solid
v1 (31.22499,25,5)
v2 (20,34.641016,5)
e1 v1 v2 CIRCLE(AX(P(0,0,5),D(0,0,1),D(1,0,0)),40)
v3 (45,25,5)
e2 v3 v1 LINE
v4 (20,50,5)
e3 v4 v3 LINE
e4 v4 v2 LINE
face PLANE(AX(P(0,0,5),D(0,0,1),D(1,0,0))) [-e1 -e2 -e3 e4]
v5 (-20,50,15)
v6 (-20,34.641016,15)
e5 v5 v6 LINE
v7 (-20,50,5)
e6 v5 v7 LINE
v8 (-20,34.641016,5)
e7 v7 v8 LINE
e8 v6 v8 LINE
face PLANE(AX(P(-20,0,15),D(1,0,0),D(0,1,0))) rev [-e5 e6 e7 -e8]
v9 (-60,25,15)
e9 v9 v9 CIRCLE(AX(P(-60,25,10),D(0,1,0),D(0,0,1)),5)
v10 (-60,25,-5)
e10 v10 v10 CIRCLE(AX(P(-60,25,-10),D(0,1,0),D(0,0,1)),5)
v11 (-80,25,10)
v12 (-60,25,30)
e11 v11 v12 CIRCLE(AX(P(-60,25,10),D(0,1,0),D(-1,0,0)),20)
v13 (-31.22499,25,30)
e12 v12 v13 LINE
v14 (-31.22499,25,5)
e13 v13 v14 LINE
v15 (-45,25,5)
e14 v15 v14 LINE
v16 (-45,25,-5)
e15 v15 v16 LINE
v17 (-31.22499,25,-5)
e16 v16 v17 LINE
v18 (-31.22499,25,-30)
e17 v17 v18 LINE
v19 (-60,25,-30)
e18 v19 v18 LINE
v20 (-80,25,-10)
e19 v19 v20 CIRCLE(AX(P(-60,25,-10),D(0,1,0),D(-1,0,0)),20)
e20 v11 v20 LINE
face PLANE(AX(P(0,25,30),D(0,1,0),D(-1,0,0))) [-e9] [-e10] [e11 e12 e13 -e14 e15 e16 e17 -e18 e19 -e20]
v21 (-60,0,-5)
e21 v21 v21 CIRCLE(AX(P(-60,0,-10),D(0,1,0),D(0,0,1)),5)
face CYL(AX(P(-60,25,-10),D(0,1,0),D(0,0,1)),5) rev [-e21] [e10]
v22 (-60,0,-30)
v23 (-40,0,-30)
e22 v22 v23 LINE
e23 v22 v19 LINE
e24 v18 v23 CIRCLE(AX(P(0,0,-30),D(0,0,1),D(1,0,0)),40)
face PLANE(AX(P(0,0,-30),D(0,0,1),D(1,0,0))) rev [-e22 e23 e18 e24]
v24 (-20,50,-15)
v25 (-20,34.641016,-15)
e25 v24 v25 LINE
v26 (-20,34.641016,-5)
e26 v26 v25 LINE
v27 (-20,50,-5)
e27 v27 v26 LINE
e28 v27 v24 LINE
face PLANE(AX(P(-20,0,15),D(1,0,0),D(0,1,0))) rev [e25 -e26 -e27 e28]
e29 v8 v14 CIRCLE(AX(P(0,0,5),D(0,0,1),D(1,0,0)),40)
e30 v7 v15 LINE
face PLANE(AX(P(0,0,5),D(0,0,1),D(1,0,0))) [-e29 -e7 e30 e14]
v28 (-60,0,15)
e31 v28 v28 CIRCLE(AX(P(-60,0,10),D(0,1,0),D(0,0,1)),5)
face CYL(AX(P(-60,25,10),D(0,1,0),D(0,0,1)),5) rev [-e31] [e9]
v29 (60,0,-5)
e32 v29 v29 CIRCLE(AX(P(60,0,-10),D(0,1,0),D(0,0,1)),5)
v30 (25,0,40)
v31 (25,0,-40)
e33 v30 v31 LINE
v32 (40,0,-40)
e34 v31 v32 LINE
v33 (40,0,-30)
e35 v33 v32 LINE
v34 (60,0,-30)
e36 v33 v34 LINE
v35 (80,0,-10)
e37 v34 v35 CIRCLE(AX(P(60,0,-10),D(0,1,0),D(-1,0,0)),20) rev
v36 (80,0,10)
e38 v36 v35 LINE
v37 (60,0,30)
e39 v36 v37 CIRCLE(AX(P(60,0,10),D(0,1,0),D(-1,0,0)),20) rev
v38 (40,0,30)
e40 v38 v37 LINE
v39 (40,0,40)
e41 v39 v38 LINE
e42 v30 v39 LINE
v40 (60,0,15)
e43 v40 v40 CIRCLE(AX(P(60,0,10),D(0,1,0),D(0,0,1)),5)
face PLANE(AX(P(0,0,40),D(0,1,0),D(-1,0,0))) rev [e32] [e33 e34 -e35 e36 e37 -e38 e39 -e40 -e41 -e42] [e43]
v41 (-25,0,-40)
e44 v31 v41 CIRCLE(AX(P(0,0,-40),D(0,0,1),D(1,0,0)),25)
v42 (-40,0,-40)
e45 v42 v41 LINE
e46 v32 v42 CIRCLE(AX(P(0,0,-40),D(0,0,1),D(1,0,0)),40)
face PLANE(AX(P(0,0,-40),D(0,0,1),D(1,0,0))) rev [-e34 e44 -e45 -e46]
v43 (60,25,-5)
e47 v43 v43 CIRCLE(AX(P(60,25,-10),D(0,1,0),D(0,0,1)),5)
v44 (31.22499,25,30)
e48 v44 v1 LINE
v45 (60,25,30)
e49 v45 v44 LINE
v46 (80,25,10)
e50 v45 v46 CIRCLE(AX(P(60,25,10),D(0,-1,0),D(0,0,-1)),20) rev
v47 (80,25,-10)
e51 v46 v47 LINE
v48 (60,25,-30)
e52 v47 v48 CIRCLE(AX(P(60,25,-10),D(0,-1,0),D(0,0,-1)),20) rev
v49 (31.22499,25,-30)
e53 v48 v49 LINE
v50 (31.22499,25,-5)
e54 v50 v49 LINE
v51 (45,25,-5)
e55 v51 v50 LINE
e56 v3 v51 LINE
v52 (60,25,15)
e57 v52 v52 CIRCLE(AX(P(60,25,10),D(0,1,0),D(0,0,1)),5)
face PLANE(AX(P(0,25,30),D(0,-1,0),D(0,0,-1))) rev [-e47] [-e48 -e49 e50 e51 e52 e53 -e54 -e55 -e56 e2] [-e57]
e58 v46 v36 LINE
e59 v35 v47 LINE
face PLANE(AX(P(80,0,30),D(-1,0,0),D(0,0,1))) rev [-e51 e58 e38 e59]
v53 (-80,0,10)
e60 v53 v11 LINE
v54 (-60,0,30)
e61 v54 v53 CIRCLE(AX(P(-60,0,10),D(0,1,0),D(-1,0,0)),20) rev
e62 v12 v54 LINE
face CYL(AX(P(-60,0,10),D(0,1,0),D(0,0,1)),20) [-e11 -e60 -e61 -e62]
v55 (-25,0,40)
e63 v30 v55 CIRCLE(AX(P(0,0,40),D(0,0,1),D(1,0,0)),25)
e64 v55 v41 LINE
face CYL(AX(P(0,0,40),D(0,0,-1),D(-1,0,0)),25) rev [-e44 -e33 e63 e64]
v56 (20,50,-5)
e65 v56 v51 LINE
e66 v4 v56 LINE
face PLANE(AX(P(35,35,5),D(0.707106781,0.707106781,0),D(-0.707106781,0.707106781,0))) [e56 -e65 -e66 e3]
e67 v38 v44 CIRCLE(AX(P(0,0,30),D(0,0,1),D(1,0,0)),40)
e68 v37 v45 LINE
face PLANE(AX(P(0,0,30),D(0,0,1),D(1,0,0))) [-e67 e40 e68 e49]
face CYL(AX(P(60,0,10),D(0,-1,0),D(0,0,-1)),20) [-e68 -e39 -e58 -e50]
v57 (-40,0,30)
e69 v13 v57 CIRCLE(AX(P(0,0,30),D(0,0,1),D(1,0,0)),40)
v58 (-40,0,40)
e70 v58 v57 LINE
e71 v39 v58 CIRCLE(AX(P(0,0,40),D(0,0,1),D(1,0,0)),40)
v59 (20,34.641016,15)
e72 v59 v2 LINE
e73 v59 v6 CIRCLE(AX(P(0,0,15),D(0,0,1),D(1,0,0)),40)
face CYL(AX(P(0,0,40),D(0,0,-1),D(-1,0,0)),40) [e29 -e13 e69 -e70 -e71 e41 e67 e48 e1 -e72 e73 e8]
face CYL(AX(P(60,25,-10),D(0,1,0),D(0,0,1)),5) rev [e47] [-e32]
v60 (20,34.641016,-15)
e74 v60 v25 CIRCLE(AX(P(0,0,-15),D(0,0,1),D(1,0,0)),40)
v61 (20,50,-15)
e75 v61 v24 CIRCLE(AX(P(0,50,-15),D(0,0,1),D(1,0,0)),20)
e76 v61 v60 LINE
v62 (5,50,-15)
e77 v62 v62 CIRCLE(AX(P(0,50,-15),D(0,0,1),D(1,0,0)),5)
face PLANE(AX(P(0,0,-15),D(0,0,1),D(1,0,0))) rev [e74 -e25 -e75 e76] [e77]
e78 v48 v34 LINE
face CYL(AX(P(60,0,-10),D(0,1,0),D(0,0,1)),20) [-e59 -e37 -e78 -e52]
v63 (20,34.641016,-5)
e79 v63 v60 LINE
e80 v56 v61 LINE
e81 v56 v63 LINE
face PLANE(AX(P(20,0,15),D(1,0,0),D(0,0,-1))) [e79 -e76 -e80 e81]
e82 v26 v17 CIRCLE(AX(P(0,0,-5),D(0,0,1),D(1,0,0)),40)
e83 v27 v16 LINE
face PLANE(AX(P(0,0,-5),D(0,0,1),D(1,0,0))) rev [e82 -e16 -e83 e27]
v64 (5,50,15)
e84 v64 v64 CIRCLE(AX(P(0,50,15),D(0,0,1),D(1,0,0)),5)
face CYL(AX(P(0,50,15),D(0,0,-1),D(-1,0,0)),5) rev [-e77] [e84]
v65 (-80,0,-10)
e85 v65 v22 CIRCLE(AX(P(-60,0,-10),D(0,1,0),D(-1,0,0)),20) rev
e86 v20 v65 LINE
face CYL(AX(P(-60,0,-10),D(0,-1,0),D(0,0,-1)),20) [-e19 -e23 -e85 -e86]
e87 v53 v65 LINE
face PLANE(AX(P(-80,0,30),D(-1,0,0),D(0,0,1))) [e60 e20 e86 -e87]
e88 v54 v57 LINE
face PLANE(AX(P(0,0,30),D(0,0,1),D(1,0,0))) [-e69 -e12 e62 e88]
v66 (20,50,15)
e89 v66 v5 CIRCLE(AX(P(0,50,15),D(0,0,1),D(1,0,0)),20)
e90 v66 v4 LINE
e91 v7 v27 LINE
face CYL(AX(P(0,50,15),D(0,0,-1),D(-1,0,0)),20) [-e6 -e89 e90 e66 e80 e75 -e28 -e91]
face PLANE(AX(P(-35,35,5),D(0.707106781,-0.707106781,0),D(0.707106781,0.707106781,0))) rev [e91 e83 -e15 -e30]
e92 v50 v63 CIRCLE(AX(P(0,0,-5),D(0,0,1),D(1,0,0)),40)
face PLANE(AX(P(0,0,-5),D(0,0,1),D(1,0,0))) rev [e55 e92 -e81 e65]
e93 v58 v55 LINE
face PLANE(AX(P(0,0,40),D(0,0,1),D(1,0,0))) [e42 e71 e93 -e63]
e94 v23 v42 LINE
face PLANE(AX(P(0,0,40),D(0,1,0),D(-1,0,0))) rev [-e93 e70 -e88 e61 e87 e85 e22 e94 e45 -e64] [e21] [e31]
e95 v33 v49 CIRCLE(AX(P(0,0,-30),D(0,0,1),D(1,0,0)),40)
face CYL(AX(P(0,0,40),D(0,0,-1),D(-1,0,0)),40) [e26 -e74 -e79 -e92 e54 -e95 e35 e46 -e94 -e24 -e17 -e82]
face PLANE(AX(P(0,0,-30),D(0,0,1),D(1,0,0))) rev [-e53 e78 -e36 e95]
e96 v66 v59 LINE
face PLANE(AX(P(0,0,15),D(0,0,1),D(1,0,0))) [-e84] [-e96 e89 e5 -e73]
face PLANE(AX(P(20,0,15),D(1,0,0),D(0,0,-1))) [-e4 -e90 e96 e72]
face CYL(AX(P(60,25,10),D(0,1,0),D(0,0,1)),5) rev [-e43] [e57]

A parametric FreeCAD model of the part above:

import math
import FreeCAD as App
import Part
import Sketcher
Q = App.Units.Quantity


def edges_at(feature, points):
    """Names of the edges that pass closest to the given points."""
    edges = feature.Shape.Edges
    near = lambda p: min(range(len(edges)), key=lambda i: edges[i].distToShape(Part.Vertex(*p))[0])
    return sorted({f"Edge{near(p) + 1}" for p in points})

doc = App.newDocument("Part")
body = doc.addObject("PartDesign::Body", "Body")

# Sketch on XY plane
sketch1 = body.newObject("Sketcher::SketchObject", "Sketch")
sketch1.AttachmentSupport = (doc.getObject("XY_Plane"), [""])
sketch1.MapMode = "FlatFace"
sketch1.addGeometry([
    Part.ArcOfCircle(Part.Circle(App.Vector(0, 0, 0), App.Vector(0, 0, 1), 40), math.radians(141), math.radians(180)),  # 0
    Part.LineSegment(App.Vector(-40, 0, 0), App.Vector(-25, 0, 0)),  # 1
    Part.ArcOfCircle(Part.Circle(App.Vector(0, 0, 0), App.Vector(0, 0, 1), 25), math.radians(0), math.radians(180)),  # 2
    Part.LineSegment(App.Vector(25, 0, 0), App.Vector(40, 0, 0)),  # 3
    Part.ArcOfCircle(Part.Circle(App.Vector(0, 0, 0), App.Vector(0, 0, 1), 40), math.radians(0), math.radians(39)),  # 4
    Part.ArcOfCircle(Part.Circle(App.Vector(0, 0, 0), App.Vector(0, 0, 1), 40), math.radians(39), math.radians(60)),  # 5
    Part.ArcOfCircle(Part.Circle(App.Vector(0, 0, 0), App.Vector(0, 0, 1), 40), math.radians(60), math.radians(120)),  # 6
    Part.ArcOfCircle(Part.Circle(App.Vector(0, 0, 0), App.Vector(0, 0, 1), 40), math.radians(120), math.radians(141)),  # 7
], False)
sketch1.addConstraint([
    Sketcher.Constraint("Coincident", 0, 2, 1, 1),
    Sketcher.Constraint("Coincident", 1, 2, 2, 2),
    Sketcher.Constraint("Coincident", 2, 1, 3, 1),
    Sketcher.Constraint("Coincident", 3, 2, 4, 1),
    Sketcher.Constraint("Tangent", 4, 2, 5, 1),
    Sketcher.Constraint("Tangent", 5, 2, 6, 1),
    Sketcher.Constraint("Tangent", 6, 2, 7, 1),
    Sketcher.Constraint("Tangent", 7, 2, 0, 1),
    Sketcher.Constraint("Horizontal", 1),
    Sketcher.Constraint("Horizontal", 3),
    Sketcher.Constraint("Coincident", 0, 3, -1, 1),
    Sketcher.Constraint("Coincident", 2, 3, -1, 1),
    Sketcher.Constraint("Coincident", 4, 3, -1, 1),
    Sketcher.Constraint("Coincident", 6, 3, -1, 1),
    Sketcher.Constraint("PointOnObject", 0, 2, -1),
    Sketcher.Constraint("PointOnObject", 2, 1, -1),
    Sketcher.Constraint("Horizontal", 5, 2, 6, 2),
    Sketcher.Constraint("Horizontal", 4, 2, 7, 2),
    Sketcher.Constraint("Radius", 0, Q("40 mm")),
    Sketcher.Constraint("Radius", 2, Q("25 mm")),
    Sketcher.Constraint("DistanceY", -1, 1, 4, 2, Q("25 mm")),
    Sketcher.Constraint("DistanceX", -1, 1, 5, 2, Q("20 mm")),
])
pad1 = body.newObject("PartDesign::Pad", "Pad")
pad1.Profile = sketch1
pad1.Length = 80
pad1.Midplane = True

# Sketch on XY plane
sketch2 = body.newObject("Sketcher::SketchObject", "Sketch001")
sketch2.AttachmentSupport = (doc.getObject("XY_Plane"), [""])
sketch2.MapMode = "FlatFace"
sketch2.addGeometry([
    Part.ArcOfCircle(Part.Circle(App.Vector(0, 0, 0), App.Vector(0, 0, 1), 40), math.radians(0), math.radians(39)),  # 0
    Part.LineSegment(App.Vector(40, 0, 0), App.Vector(80, 0, 0)),  # 1
    Part.LineSegment(App.Vector(80, 0, 0), App.Vector(80, 25, 0)),  # 2
    Part.LineSegment(App.Vector(80, 25, 0), App.Vector(31, 25, 0)),  # 3
    Part.LineSegment(App.Vector(-80, 25, 0), App.Vector(-80, 0, 0)),  # 4
    Part.LineSegment(App.Vector(-80, 0, 0), App.Vector(-40, 0, 0)),  # 5
    Part.ArcOfCircle(Part.Circle(App.Vector(0, 0, 0), App.Vector(0, 0, 1), 40), math.radians(141), math.radians(180)),  # 6
    Part.LineSegment(App.Vector(-31, 25, 0), App.Vector(-80, 25, 0)),  # 7
], False)
sketch2.addConstraint([
    Sketcher.Constraint("Coincident", 0, 1, 1, 1),
    Sketcher.Constraint("Coincident", 1, 2, 2, 1),
    Sketcher.Constraint("Coincident", 2, 2, 3, 1),
    Sketcher.Constraint("Coincident", 3, 2, 0, 2),
    Sketcher.Constraint("Coincident", 4, 2, 5, 1),
    Sketcher.Constraint("Coincident", 5, 2, 6, 2),
    Sketcher.Constraint("Coincident", 6, 1, 7, 1),
    Sketcher.Constraint("Coincident", 7, 2, 4, 1),
    Sketcher.Constraint("Horizontal", 1),
    Sketcher.Constraint("Vertical", 2),
    Sketcher.Constraint("Horizontal", 3),
    Sketcher.Constraint("Vertical", 4),
    Sketcher.Constraint("Horizontal", 5),
    Sketcher.Constraint("Horizontal", 7),
    Sketcher.Constraint("Coincident", 0, 3, -1, 1),
    Sketcher.Constraint("Coincident", 6, 3, -1, 1),
    Sketcher.Constraint("Equal", 0, 6),
    Sketcher.Constraint("Symmetric", 1, 2, 4, 2, -1, 1),
    Sketcher.Constraint("PointOnObject", 0, 1, -1),
    Sketcher.Constraint("Horizontal", 3, 2, 6, 1),
    Sketcher.Constraint("Radius", 0, Q("40 mm")),
    Sketcher.Constraint("DistanceX", 1, 1, 1, 2, Q("40 mm")),
    Sketcher.Constraint("DistanceY", 2, 1, 2, 2, Q("25 mm")),
])
pad2 = body.newObject("PartDesign::Pad", "Pad001")
pad2.Profile = sketch2
pad2.Length = 60
pad2.Midplane = True

# Sketch on XY plane
sketch3 = body.newObject("Sketcher::SketchObject", "Sketch002")
sketch3.AttachmentSupport = (doc.getObject("XY_Plane"), [""])
sketch3.MapMode = "FlatFace"
sketch3.addGeometry([
    Part.LineSegment(App.Vector(20, 50, 0), App.Vector(20, 35, 0)),  # 0
    Part.ArcOfCircle(Part.Circle(App.Vector(0, 0, 0), App.Vector(0, 0, 1), 40), math.radians(39), math.radians(60)),  # 1
    Part.LineSegment(App.Vector(31, 25, 0), App.Vector(45, 25, 0)),  # 2
    Part.LineSegment(App.Vector(45, 25, 0), App.Vector(20, 50, 0)),  # 3
    Part.LineSegment(App.Vector(-45, 25, 0), App.Vector(-31, 25, 0)),  # 4
    Part.ArcOfCircle(Part.Circle(App.Vector(0, 0, 0), App.Vector(0, 0, 1), 40), math.radians(120), math.radians(141)),  # 5
    Part.LineSegment(App.Vector(-20, 35, 0), App.Vector(-20, 50, 0)),  # 6
    Part.LineSegment(App.Vector(-20, 50, 0), App.Vector(-45, 25, 0)),  # 7
], False)
sketch3.addConstraint([
    Sketcher.Constraint("Coincident", 0, 2, 1, 2),
    Sketcher.Constraint("Coincident", 1, 1, 2, 1),
    Sketcher.Constraint("Coincident", 2, 2, 3, 1),
    Sketcher.Constraint("Coincident", 3, 2, 0, 1),
    Sketcher.Constraint("Coincident", 4, 2, 5, 2),
    Sketcher.Constraint("Coincident", 5, 1, 6, 1),
    Sketcher.Constraint("Coincident", 6, 2, 7, 1),
    Sketcher.Constraint("Coincident", 7, 2, 4, 1),
    Sketcher.Constraint("Vertical", 0),
    Sketcher.Constraint("Horizontal", 2),
    Sketcher.Constraint("Horizontal", 4),
    Sketcher.Constraint("Vertical", 6),
    Sketcher.Constraint("Coincident", 1, 3, -1, 1),
    Sketcher.Constraint("Coincident", 5, 3, -1, 1),
    Sketcher.Constraint("Equal", 1, 5),
    Sketcher.Constraint("Symmetric", 3, 2, 6, 2, -2),
    Sketcher.Constraint("Symmetric", 2, 2, 7, 2, -2),
    Sketcher.Constraint("Perpendicular", 3, 7),
    Sketcher.Constraint("Radius", 1, Q("40 mm")),
    Sketcher.Constraint("DistanceX", -1, 1, 0, 2, Q("20 mm")),
    Sketcher.Constraint("DistanceY", -1, 1, 1, 1, Q("25 mm")),
    Sketcher.Constraint("DistanceX", -1, 1, 2, 2, Q("45 mm")),
])
pad3 = body.newObject("PartDesign::Pad", "Pad002")
pad3.Profile = sketch3
pad3.Length = 10
pad3.Midplane = True

# Sketch on XY plane
sketch4 = body.newObject("Sketcher::SketchObject", "Sketch003")
sketch4.AttachmentSupport = (doc.getObject("XY_Plane"), [""])
sketch4.MapMode = "FlatFace"
sketch4.addGeometry([
    Part.LineSegment(App.Vector(-20, 50, 0), App.Vector(-20, 35, 0)),  # 0
    Part.ArcOfCircle(Part.Circle(App.Vector(0, 0, 0), App.Vector(0, 0, 1), 40), math.radians(60), math.radians(120)),  # 1
    Part.LineSegment(App.Vector(20, 35, 0), App.Vector(20, 50, 0)),  # 2
    Part.ArcOfCircle(Part.Circle(App.Vector(0, 50, 0), App.Vector(0, 0, 1), 20), math.radians(0), math.radians(180)),  # 3
    Part.Circle(App.Vector(0, 50, 0), App.Vector(0, 0, 1), 5),  # 4
], False)
sketch4.addConstraint([
    Sketcher.Constraint("Coincident", 0, 2, 1, 2),
    Sketcher.Constraint("Coincident", 1, 1, 2, 1),
    Sketcher.Constraint("Tangent", 2, 2, 3, 1),
    Sketcher.Constraint("Tangent", 3, 2, 0, 1),
    Sketcher.Constraint("Vertical", 0),
    Sketcher.Constraint("Vertical", 2),
    Sketcher.Constraint("Coincident", 1, 3, -1, 1),
    Sketcher.Constraint("Coincident", 4, 3, 3, 3),
    Sketcher.Constraint("PointOnObject", 3, 3, -2),
    Sketcher.Constraint("Diameter", 4, Q("10 mm")),
    Sketcher.Constraint("Radius", 1, Q("40 mm")),
    Sketcher.Constraint("Radius", 3, Q("20 mm")),
    Sketcher.Constraint("DistanceY", -1, 1, 3, 3, Q("50 mm")),
])
pad4 = body.newObject("PartDesign::Pad", "Pad003")
pad4.Profile = sketch4
pad4.Length = 30
pad4.Midplane = True

# Sketch on XZ plane
sketch5 = body.newObject("Sketcher::SketchObject", "Sketch004")
sketch5.AttachmentSupport = (doc.getObject("XZ_Plane"), [""])
sketch5.MapMode = "FlatFace"
sketch5.AttachmentOffset = App.Placement(App.Vector(0, 0, -25), App.Rotation())
sketch5.addGeometry([
    Part.Circle(App.Vector(-60, -10, 0), App.Vector(0, 0, 1), 5),
    Part.Circle(App.Vector(-60, 10, 0), App.Vector(0, 0, 1), 5),
    Part.Circle(App.Vector(60, 10, 0), App.Vector(0, 0, 1), 5),
    Part.Circle(App.Vector(60, -10, 0), App.Vector(0, 0, 1), 5),
], False)
sketch5.addConstraint([
    Sketcher.Constraint("Equal", 0, 1),
    Sketcher.Constraint("Equal", 1, 2),
    Sketcher.Constraint("Equal", 2, 3),
    Sketcher.Constraint("Symmetric", 0, 3, 2, 3, -1, 1),
    Sketcher.Constraint("Symmetric", 1, 3, 3, 3, -1, 1),
    Sketcher.Constraint("Symmetric", 1, 3, 2, 3, -2),
    Sketcher.Constraint("Diameter", 0, Q("10 mm")),
    Sketcher.Constraint("DistanceX", 0, 3, -1, 1, Q("60 mm")),
    Sketcher.Constraint("DistanceY", 0, 3, -1, 1, Q("10 mm")),
])
doc.recompute()
hole = body.newObject("PartDesign::Hole", "Hole")
hole.Profile = sketch5
hole.ThreadType = "None"
hole.Diameter = 10
hole.DepthType = "ThroughAll"
hole.Reversed = True
doc.recompute()

fillet = body.newObject("PartDesign::Fillet", "Fillet")
fillet.Base = (hole, edges_at(hole, [
    (80, 12.5, -30),
    (80, 12.5, 30),
    (-80, 12.5, 30),
    (-80, 12.5, -30),
]))
fillet.Radius = 20

doc.recompute()
